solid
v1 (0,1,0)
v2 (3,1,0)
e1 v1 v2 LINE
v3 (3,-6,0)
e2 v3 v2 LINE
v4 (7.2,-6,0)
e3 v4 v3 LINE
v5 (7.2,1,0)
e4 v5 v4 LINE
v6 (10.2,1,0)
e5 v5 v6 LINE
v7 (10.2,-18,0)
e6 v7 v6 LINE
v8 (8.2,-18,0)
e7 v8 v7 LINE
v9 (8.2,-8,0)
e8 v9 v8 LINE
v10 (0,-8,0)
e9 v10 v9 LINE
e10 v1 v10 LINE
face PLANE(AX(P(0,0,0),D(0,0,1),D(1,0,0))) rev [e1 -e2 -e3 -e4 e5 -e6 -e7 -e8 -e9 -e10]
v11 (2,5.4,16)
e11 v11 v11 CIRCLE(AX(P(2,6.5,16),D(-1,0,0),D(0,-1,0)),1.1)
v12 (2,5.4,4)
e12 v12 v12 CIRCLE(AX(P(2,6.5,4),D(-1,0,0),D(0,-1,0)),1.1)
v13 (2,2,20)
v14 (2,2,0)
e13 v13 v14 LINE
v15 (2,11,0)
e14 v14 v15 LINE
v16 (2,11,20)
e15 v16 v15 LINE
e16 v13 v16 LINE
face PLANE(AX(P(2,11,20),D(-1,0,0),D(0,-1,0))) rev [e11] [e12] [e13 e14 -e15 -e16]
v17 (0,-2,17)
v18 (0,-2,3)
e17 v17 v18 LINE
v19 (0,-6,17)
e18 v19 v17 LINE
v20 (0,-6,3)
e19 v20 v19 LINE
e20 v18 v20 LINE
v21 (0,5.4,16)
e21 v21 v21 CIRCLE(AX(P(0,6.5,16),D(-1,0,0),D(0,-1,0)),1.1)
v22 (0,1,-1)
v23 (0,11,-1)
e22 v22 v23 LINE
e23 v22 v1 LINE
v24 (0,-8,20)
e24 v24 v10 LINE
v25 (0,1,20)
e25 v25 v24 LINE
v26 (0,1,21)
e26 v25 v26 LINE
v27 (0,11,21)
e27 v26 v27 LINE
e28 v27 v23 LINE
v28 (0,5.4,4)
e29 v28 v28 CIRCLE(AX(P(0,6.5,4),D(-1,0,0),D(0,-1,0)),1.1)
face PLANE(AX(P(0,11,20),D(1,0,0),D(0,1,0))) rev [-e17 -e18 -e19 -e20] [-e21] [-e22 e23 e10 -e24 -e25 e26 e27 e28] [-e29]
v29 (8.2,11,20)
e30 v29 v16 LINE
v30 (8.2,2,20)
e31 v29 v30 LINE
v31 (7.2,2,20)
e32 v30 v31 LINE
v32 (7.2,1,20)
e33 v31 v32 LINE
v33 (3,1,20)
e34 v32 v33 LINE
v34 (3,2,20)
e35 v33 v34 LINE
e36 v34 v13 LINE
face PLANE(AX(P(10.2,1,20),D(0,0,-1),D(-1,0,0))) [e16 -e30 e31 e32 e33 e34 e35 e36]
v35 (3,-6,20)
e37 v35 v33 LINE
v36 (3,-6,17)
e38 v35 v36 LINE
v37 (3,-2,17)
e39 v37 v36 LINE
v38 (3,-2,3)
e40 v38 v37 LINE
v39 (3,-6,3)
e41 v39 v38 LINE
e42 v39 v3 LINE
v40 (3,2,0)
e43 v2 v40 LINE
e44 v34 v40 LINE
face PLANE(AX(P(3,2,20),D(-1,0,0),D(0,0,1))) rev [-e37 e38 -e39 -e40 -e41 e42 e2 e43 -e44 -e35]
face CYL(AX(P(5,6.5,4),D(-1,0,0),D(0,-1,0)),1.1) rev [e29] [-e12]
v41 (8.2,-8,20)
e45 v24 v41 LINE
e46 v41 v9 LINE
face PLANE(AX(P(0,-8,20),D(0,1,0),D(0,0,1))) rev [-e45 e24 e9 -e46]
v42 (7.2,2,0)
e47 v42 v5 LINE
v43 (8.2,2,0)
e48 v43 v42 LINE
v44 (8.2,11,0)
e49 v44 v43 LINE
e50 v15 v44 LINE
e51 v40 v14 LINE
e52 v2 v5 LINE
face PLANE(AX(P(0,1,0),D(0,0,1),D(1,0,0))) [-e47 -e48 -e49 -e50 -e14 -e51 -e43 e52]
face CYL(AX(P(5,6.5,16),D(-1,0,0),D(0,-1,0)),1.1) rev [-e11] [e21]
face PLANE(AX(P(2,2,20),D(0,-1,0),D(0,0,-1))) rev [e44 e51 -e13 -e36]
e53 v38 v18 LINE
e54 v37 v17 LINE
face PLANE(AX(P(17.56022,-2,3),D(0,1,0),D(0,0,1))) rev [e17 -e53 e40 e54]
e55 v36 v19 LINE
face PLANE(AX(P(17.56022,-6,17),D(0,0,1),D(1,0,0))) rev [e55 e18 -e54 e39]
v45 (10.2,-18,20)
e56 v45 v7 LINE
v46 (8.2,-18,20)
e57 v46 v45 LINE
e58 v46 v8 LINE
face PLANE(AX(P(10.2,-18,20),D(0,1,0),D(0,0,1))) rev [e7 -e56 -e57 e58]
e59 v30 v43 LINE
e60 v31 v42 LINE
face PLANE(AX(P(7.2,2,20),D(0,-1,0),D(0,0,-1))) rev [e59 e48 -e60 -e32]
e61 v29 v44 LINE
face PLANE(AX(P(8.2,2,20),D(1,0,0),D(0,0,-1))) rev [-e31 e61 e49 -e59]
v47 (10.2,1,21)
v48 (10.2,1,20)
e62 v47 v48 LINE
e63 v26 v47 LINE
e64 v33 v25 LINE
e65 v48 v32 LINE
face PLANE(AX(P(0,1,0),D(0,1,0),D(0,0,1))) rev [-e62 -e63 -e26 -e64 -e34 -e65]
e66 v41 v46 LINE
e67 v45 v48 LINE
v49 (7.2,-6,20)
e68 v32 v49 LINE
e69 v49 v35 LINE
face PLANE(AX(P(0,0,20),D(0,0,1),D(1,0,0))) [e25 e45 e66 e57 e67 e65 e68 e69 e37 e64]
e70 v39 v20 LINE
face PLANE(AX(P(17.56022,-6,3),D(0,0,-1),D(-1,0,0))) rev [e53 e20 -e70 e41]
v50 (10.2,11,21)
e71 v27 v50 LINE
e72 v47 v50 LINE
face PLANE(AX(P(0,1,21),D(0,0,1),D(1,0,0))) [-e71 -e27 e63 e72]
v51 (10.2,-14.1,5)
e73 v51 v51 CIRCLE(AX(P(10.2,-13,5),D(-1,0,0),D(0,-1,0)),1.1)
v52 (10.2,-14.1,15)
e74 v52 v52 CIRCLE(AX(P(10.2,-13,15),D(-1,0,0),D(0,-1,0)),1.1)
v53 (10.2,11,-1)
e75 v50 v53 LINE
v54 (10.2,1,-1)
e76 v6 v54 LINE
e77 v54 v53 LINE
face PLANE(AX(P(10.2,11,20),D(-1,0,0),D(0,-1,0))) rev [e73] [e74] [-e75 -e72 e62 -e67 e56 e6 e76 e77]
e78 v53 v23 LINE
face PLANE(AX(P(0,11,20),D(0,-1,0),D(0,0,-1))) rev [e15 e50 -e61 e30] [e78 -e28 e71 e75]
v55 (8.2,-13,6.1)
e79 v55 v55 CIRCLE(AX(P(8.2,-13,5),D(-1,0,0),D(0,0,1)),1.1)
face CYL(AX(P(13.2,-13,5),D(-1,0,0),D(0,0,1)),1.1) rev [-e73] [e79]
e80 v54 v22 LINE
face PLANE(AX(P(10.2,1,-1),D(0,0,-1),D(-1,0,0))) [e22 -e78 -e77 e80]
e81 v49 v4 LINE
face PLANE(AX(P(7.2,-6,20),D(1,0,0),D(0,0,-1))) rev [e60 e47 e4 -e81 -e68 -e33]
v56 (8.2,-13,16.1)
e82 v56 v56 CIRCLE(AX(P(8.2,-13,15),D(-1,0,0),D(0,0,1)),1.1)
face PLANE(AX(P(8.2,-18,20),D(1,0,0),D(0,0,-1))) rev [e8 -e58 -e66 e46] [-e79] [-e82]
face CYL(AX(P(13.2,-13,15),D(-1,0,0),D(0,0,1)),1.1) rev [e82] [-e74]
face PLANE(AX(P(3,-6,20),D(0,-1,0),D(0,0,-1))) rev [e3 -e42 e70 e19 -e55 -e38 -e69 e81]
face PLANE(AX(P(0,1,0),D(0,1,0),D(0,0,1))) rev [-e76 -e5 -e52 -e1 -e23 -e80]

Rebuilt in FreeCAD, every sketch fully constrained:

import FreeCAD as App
import Part
import Sketcher
Q = App.Units.Quantity

doc = App.newDocument("Part")
body = doc.addObject("PartDesign::Body", "Body")

# Sketch on XY plane
sketch1 = body.newObject("Sketcher::SketchObject", "Sketch")
sketch1.AttachmentSupport = (doc.getObject("XY_Plane"), [""])
sketch1.MapMode = "FlatFace"
sketch1.addGeometry([
    Part.LineSegment(App.Vector(0, 11, 0), App.Vector(0, -8, 0)),  # 0
    Part.LineSegment(App.Vector(0, -8, 0), App.Vector(8.2, -8, 0)),  # 1
    Part.LineSegment(App.Vector(8.2, -8, 0), App.Vector(8.2, -18, 0)),  # 2
    Part.LineSegment(App.Vector(8.2, -18, 0), App.Vector(10.2, -18, 0)),  # 3
    Part.LineSegment(App.Vector(10.2, -18, 0), App.Vector(10.2, 11, 0)),  # 4
    Part.LineSegment(App.Vector(10.2, 11, 0), App.Vector(8.2, 11, 0)),  # 5
    Part.LineSegment(App.Vector(8.2, 11, 0), App.Vector(8.2, 2, 0)),  # 6
    Part.LineSegment(App.Vector(8.2, 2, 0), App.Vector(7.2, 2, 0)),  # 7
    Part.LineSegment(App.Vector(7.2, 2, 0), App.Vector(7.2, -6, 0)),  # 8
    Part.LineSegment(App.Vector(7.2, -6, 0), App.Vector(3, -6, 0)),  # 9
    Part.LineSegment(App.Vector(3, -6, 0), App.Vector(3, 2, 0)),  # 10
    Part.LineSegment(App.Vector(3, 2, 0), App.Vector(2, 2, 0)),  # 11
    Part.LineSegment(App.Vector(2, 2, 0), App.Vector(2, 11, 0)),  # 12
    Part.LineSegment(App.Vector(2, 11, 0), App.Vector(0, 11, 0)),  # 13
], False)
sketch1.addConstraint([
    Sketcher.Constraint("Coincident", 0, 2, 1, 1),
    Sketcher.Constraint("Coincident", 1, 2, 2, 1),
    Sketcher.Constraint("Coincident", 2, 2, 3, 1),
    Sketcher.Constraint("Coincident", 3, 2, 4, 1),
    Sketcher.Constraint("Coincident", 4, 2, 5, 1),
    Sketcher.Constraint("Coincident", 5, 2, 6, 1),
    Sketcher.Constraint("Coincident", 6, 2, 7, 1),
    Sketcher.Constraint("Coincident", 7, 2, 8, 1),
    Sketcher.Constraint("Coincident", 8, 2, 9, 1),
    Sketcher.Constraint("Coincident", 9, 2, 10, 1),
    Sketcher.Constraint("Coincident", 10, 2, 11, 1),
    Sketcher.Constraint("Coincident", 11, 2, 12, 1),
    Sketcher.Constraint("Coincident", 12, 2, 13, 1),
    Sketcher.Constraint("Coincident", 13, 2, 0, 1),
    Sketcher.Constraint("Vertical", 0),
    Sketcher.Constraint("Horizontal", 1),
    Sketcher.Constraint("Vertical", 2),
    Sketcher.Constraint("Horizontal", 3),
    Sketcher.Constraint("Vertical", 4),
    Sketcher.Constraint("Horizontal", 5),
    Sketcher.Constraint("Vertical", 6),
    Sketcher.Constraint("Horizontal", 7),
    Sketcher.Constraint("Vertical", 8),
    Sketcher.Constraint("Horizontal", 9),
    Sketcher.Constraint("Vertical", 10),
    Sketcher.Constraint("Horizontal", 11),
    Sketcher.Constraint("Vertical", 12),
    Sketcher.Constraint("Horizontal", 13),
    Sketcher.Constraint("PointOnObject", 0, 2, -2),
    Sketcher.Constraint("Horizontal", 7, 2, 10, 2),
    Sketcher.Constraint("Horizontal", 5, 2, 12, 2),
    Sketcher.Constraint("Vertical", 2, 2, 5, 2),
    Sketcher.Constraint("Equal", 7, 11),
    Sketcher.Constraint("Equal", 5, 13),
    Sketcher.Constraint("DistanceX", 3, 1, 3, 2, Q("2 mm")),
    Sketcher.Constraint("DistanceX", 7, 2, 7, 1, Q("1 mm")),
    Sketcher.Constraint("DistanceY", 0, 2, 0, 1, Q("19 mm")),
    Sketcher.Constraint("DistanceY", 2, 2, 2, 1, Q("10 mm")),
    Sketcher.Constraint("DistanceY", 6, 2, 6, 1, Q("9 mm")),
    Sketcher.Constraint("DistanceY", 8, 2, 8, 1, Q("8 mm")),
    Sketcher.Constraint("DistanceX", 1, 1, 1, 2, Q("8.2 mm")),
    Sketcher.Constraint("DistanceY", 0, 2, -1, 1, Q("8 mm")),
])
pad1 = body.newObject("PartDesign::Pad", "Pad")
pad1.Profile = sketch1
pad1.Length = 20

# Sketch on YZ plane
sketch2 = body.newObject("Sketcher::SketchObject", "Sketch001")
sketch2.AttachmentSupport = (doc.getObject("YZ_Plane"), [""])
sketch2.MapMode = "FlatFace"
sketch2.addGeometry([
    Part.LineSegment(App.Vector(-2, 3, 0), App.Vector(-6, 3, 0)),
    Part.LineSegment(App.Vector(-6, 3, 0), App.Vector(-6, 17, 0)),
    Part.LineSegment(App.Vector(-6, 17, 0), App.Vector(-2, 17, 0)),
    Part.LineSegment(App.Vector(-2, 17, 0), App.Vector(-2, 3, 0)),
], False)
sketch2.addConstraint([
    Sketcher.Constraint("Coincident", 0, 2, 1, 1),
    Sketcher.Constraint("Coincident", 1, 2, 2, 1),
    Sketcher.Constraint("Coincident", 2, 2, 3, 1),
    Sketcher.Constraint("Coincident", 3, 2, 0, 1),
    Sketcher.Constraint("Horizontal", 0),
    Sketcher.Constraint("Vertical", 1),
    Sketcher.Constraint("Horizontal", 2),
    Sketcher.Constraint("Vertical", 3),
    Sketcher.Constraint("DistanceX", 0, 2, 0, 1, Q("4 mm")),
    Sketcher.Constraint("DistanceY", 1, 1, 1, 2, Q("14 mm")),
    Sketcher.Constraint("DistanceX", 0, 2, -1, 1, Q("6 mm")),
    Sketcher.Constraint("DistanceY", -1, 1, 0, 2, Q("3 mm")),
])
pocket1 = body.newObject("PartDesign::Pocket", "Pocket")
pocket1.Profile = sketch2
pocket1.Length = 3
pocket1.Reversed = True

# Sketch on XZ plane
sketch3 = body.newObject("Sketcher::SketchObject", "Sketch002")
sketch3.AttachmentSupport = (doc.getObject("XZ_Plane"), [""])
sketch3.MapMode = "FlatFace"
sketch3.AttachmentOffset = App.Placement(App.Vector(0, 0, -11), App.Rotation())
sketch3.addGeometry([
    Part.LineSegment(App.Vector(0, -1, 0), App.Vector(0, 0, 0)),  # 0
    Part.LineSegment(App.Vector(0, 0, 0), App.Vector(10.2, 0, 0)),  # 1
    Part.LineSegment(App.Vector(10.2, 0, 0), App.Vector(10.2, -1, 0)),  # 2
    Part.LineSegment(App.Vector(10.2, -1, 0), App.Vector(0, -1, 0)),  # 3
    Part.LineSegment(App.Vector(0, 20, 0), App.Vector(0, 21, 0)),  # 4
    Part.LineSegment(App.Vector(0, 21, 0), App.Vector(10.2, 21, 0)),  # 5
    Part.LineSegment(App.Vector(10.2, 21, 0), App.Vector(10.2, 20, 0)),  # 6
    Part.LineSegment(App.Vector(10.2, 20, 0), App.Vector(0, 20, 0)),  # 7
], False)
sketch3.addConstraint([
    Sketcher.Constraint("Coincident", 0, 2, 1, 1),
    Sketcher.Constraint("Coincident", 1, 2, 2, 1),
    Sketcher.Constraint("Coincident", 2, 2, 3, 1),
    Sketcher.Constraint("Coincident", 3, 2, 0, 1),
    Sketcher.Constraint("Coincident", 4, 2, 5, 1),
    Sketcher.Constraint("Coincident", 5, 2, 6, 1),
    Sketcher.Constraint("Coincident", 6, 2, 7, 1),
    Sketcher.Constraint("Coincident", 7, 2, 4, 1),
    Sketcher.Constraint("Vertical", 0),
    Sketcher.Constraint("Horizontal", 1),
    Sketcher.Constraint("Vertical", 2),
    Sketcher.Constraint("Horizontal", 3),
    Sketcher.Constraint("Vertical", 4),
    Sketcher.Constraint("Horizontal", 5),
    Sketcher.Constraint("Vertical", 6),
    Sketcher.Constraint("Horizontal", 7),
    Sketcher.Constraint("Coincident", 0, 2, -1, 1),
    Sketcher.Constraint("PointOnObject", 4, 2, -2),
    Sketcher.Constraint("Vertical", 2, 2, 5, 2),
    Sketcher.Constraint("Equal", 2, 4),
    Sketcher.Constraint("DistanceY", 0, 1, 0, 2, Q("1 mm")),
    Sketcher.Constraint("DistanceX", 1, 1, 1, 2, Q("10.2 mm")),
    Sketcher.Constraint("DistanceY", -1, 1, 4, 2, Q("21 mm")),
])
pad2 = body.newObject("PartDesign::Pad", "Pad001")
pad2.Profile = sketch3
pad2.Length = 10

# Sketch on YZ plane
sketch4 = body.newObject("Sketcher::SketchObject", "Sketch003")
sketch4.AttachmentSupport = (doc.getObject("YZ_Plane"), [""])
sketch4.MapMode = "FlatFace"
sketch4.addGeometry([
    Part.Circle(App.Vector(6.5, 4, 0), App.Vector(0, 0, 1), 1.1),
    Part.Circle(App.Vector(6.5, 16, 0), App.Vector(0, 0, 1), 1.1),
], False)
sketch4.addConstraint([
    Sketcher.Constraint("Equal", 0, 1),
    Sketcher.Constraint("Vertical", 0, 3, 1, 3),
    Sketcher.Constraint("Diameter", 0, Q("2.2 mm")),
    Sketcher.Constraint("DistanceY", -1, 1, 0, 3, Q("4 mm")),
    Sketcher.Constraint("DistanceY", -1, 1, 1, 3, Q("16 mm")),
    Sketcher.Constraint("DistanceX", -1, 1, 0, 3, Q("6.5 mm")),
])
pocket2 = body.newObject("PartDesign::Pocket", "Pocket001")
pocket2.Profile = sketch4
pocket2.Length = 5
pocket2.Reversed = True

# Sketch on YZ plane
sketch5 = body.newObject("Sketcher::SketchObject", "Sketch004")
sketch5.AttachmentSupport = (doc.getObject("YZ_Plane"), [""])
sketch5.MapMode = "FlatFace"
sketch5.AttachmentOffset = App.Placement(App.Vector(0, 0, 8.2), App.Rotation())
sketch5.addGeometry([
    Part.Circle(App.Vector(-13, 5, 0), App.Vector(0, 0, 1), 1.1),
    Part.Circle(App.Vector(-13, 15, 0), App.Vector(0, 0, 1), 1.1),
], False)
sketch5.addConstraint([
    Sketcher.Constraint("Equal", 0, 1),
    Sketcher.Constraint("Vertical", 0, 3, 1, 3),
    Sketcher.Constraint("Diameter", 0, Q("2.2 mm")),
    Sketcher.Constraint("DistanceX", 0, 3, -1, 1, Q("13 mm")),
    Sketcher.Constraint("DistanceY", -1, 1, 0, 3, Q("5 mm")),
    Sketcher.Constraint("DistanceY", -1, 1, 1, 3, Q("15 mm")),
])
pocket3 = body.newObject("PartDesign::Pocket", "Pocket002")
pocket3.Profile = sketch5
pocket3.Length = 5
pocket3.Reversed = True

doc.recompute()
